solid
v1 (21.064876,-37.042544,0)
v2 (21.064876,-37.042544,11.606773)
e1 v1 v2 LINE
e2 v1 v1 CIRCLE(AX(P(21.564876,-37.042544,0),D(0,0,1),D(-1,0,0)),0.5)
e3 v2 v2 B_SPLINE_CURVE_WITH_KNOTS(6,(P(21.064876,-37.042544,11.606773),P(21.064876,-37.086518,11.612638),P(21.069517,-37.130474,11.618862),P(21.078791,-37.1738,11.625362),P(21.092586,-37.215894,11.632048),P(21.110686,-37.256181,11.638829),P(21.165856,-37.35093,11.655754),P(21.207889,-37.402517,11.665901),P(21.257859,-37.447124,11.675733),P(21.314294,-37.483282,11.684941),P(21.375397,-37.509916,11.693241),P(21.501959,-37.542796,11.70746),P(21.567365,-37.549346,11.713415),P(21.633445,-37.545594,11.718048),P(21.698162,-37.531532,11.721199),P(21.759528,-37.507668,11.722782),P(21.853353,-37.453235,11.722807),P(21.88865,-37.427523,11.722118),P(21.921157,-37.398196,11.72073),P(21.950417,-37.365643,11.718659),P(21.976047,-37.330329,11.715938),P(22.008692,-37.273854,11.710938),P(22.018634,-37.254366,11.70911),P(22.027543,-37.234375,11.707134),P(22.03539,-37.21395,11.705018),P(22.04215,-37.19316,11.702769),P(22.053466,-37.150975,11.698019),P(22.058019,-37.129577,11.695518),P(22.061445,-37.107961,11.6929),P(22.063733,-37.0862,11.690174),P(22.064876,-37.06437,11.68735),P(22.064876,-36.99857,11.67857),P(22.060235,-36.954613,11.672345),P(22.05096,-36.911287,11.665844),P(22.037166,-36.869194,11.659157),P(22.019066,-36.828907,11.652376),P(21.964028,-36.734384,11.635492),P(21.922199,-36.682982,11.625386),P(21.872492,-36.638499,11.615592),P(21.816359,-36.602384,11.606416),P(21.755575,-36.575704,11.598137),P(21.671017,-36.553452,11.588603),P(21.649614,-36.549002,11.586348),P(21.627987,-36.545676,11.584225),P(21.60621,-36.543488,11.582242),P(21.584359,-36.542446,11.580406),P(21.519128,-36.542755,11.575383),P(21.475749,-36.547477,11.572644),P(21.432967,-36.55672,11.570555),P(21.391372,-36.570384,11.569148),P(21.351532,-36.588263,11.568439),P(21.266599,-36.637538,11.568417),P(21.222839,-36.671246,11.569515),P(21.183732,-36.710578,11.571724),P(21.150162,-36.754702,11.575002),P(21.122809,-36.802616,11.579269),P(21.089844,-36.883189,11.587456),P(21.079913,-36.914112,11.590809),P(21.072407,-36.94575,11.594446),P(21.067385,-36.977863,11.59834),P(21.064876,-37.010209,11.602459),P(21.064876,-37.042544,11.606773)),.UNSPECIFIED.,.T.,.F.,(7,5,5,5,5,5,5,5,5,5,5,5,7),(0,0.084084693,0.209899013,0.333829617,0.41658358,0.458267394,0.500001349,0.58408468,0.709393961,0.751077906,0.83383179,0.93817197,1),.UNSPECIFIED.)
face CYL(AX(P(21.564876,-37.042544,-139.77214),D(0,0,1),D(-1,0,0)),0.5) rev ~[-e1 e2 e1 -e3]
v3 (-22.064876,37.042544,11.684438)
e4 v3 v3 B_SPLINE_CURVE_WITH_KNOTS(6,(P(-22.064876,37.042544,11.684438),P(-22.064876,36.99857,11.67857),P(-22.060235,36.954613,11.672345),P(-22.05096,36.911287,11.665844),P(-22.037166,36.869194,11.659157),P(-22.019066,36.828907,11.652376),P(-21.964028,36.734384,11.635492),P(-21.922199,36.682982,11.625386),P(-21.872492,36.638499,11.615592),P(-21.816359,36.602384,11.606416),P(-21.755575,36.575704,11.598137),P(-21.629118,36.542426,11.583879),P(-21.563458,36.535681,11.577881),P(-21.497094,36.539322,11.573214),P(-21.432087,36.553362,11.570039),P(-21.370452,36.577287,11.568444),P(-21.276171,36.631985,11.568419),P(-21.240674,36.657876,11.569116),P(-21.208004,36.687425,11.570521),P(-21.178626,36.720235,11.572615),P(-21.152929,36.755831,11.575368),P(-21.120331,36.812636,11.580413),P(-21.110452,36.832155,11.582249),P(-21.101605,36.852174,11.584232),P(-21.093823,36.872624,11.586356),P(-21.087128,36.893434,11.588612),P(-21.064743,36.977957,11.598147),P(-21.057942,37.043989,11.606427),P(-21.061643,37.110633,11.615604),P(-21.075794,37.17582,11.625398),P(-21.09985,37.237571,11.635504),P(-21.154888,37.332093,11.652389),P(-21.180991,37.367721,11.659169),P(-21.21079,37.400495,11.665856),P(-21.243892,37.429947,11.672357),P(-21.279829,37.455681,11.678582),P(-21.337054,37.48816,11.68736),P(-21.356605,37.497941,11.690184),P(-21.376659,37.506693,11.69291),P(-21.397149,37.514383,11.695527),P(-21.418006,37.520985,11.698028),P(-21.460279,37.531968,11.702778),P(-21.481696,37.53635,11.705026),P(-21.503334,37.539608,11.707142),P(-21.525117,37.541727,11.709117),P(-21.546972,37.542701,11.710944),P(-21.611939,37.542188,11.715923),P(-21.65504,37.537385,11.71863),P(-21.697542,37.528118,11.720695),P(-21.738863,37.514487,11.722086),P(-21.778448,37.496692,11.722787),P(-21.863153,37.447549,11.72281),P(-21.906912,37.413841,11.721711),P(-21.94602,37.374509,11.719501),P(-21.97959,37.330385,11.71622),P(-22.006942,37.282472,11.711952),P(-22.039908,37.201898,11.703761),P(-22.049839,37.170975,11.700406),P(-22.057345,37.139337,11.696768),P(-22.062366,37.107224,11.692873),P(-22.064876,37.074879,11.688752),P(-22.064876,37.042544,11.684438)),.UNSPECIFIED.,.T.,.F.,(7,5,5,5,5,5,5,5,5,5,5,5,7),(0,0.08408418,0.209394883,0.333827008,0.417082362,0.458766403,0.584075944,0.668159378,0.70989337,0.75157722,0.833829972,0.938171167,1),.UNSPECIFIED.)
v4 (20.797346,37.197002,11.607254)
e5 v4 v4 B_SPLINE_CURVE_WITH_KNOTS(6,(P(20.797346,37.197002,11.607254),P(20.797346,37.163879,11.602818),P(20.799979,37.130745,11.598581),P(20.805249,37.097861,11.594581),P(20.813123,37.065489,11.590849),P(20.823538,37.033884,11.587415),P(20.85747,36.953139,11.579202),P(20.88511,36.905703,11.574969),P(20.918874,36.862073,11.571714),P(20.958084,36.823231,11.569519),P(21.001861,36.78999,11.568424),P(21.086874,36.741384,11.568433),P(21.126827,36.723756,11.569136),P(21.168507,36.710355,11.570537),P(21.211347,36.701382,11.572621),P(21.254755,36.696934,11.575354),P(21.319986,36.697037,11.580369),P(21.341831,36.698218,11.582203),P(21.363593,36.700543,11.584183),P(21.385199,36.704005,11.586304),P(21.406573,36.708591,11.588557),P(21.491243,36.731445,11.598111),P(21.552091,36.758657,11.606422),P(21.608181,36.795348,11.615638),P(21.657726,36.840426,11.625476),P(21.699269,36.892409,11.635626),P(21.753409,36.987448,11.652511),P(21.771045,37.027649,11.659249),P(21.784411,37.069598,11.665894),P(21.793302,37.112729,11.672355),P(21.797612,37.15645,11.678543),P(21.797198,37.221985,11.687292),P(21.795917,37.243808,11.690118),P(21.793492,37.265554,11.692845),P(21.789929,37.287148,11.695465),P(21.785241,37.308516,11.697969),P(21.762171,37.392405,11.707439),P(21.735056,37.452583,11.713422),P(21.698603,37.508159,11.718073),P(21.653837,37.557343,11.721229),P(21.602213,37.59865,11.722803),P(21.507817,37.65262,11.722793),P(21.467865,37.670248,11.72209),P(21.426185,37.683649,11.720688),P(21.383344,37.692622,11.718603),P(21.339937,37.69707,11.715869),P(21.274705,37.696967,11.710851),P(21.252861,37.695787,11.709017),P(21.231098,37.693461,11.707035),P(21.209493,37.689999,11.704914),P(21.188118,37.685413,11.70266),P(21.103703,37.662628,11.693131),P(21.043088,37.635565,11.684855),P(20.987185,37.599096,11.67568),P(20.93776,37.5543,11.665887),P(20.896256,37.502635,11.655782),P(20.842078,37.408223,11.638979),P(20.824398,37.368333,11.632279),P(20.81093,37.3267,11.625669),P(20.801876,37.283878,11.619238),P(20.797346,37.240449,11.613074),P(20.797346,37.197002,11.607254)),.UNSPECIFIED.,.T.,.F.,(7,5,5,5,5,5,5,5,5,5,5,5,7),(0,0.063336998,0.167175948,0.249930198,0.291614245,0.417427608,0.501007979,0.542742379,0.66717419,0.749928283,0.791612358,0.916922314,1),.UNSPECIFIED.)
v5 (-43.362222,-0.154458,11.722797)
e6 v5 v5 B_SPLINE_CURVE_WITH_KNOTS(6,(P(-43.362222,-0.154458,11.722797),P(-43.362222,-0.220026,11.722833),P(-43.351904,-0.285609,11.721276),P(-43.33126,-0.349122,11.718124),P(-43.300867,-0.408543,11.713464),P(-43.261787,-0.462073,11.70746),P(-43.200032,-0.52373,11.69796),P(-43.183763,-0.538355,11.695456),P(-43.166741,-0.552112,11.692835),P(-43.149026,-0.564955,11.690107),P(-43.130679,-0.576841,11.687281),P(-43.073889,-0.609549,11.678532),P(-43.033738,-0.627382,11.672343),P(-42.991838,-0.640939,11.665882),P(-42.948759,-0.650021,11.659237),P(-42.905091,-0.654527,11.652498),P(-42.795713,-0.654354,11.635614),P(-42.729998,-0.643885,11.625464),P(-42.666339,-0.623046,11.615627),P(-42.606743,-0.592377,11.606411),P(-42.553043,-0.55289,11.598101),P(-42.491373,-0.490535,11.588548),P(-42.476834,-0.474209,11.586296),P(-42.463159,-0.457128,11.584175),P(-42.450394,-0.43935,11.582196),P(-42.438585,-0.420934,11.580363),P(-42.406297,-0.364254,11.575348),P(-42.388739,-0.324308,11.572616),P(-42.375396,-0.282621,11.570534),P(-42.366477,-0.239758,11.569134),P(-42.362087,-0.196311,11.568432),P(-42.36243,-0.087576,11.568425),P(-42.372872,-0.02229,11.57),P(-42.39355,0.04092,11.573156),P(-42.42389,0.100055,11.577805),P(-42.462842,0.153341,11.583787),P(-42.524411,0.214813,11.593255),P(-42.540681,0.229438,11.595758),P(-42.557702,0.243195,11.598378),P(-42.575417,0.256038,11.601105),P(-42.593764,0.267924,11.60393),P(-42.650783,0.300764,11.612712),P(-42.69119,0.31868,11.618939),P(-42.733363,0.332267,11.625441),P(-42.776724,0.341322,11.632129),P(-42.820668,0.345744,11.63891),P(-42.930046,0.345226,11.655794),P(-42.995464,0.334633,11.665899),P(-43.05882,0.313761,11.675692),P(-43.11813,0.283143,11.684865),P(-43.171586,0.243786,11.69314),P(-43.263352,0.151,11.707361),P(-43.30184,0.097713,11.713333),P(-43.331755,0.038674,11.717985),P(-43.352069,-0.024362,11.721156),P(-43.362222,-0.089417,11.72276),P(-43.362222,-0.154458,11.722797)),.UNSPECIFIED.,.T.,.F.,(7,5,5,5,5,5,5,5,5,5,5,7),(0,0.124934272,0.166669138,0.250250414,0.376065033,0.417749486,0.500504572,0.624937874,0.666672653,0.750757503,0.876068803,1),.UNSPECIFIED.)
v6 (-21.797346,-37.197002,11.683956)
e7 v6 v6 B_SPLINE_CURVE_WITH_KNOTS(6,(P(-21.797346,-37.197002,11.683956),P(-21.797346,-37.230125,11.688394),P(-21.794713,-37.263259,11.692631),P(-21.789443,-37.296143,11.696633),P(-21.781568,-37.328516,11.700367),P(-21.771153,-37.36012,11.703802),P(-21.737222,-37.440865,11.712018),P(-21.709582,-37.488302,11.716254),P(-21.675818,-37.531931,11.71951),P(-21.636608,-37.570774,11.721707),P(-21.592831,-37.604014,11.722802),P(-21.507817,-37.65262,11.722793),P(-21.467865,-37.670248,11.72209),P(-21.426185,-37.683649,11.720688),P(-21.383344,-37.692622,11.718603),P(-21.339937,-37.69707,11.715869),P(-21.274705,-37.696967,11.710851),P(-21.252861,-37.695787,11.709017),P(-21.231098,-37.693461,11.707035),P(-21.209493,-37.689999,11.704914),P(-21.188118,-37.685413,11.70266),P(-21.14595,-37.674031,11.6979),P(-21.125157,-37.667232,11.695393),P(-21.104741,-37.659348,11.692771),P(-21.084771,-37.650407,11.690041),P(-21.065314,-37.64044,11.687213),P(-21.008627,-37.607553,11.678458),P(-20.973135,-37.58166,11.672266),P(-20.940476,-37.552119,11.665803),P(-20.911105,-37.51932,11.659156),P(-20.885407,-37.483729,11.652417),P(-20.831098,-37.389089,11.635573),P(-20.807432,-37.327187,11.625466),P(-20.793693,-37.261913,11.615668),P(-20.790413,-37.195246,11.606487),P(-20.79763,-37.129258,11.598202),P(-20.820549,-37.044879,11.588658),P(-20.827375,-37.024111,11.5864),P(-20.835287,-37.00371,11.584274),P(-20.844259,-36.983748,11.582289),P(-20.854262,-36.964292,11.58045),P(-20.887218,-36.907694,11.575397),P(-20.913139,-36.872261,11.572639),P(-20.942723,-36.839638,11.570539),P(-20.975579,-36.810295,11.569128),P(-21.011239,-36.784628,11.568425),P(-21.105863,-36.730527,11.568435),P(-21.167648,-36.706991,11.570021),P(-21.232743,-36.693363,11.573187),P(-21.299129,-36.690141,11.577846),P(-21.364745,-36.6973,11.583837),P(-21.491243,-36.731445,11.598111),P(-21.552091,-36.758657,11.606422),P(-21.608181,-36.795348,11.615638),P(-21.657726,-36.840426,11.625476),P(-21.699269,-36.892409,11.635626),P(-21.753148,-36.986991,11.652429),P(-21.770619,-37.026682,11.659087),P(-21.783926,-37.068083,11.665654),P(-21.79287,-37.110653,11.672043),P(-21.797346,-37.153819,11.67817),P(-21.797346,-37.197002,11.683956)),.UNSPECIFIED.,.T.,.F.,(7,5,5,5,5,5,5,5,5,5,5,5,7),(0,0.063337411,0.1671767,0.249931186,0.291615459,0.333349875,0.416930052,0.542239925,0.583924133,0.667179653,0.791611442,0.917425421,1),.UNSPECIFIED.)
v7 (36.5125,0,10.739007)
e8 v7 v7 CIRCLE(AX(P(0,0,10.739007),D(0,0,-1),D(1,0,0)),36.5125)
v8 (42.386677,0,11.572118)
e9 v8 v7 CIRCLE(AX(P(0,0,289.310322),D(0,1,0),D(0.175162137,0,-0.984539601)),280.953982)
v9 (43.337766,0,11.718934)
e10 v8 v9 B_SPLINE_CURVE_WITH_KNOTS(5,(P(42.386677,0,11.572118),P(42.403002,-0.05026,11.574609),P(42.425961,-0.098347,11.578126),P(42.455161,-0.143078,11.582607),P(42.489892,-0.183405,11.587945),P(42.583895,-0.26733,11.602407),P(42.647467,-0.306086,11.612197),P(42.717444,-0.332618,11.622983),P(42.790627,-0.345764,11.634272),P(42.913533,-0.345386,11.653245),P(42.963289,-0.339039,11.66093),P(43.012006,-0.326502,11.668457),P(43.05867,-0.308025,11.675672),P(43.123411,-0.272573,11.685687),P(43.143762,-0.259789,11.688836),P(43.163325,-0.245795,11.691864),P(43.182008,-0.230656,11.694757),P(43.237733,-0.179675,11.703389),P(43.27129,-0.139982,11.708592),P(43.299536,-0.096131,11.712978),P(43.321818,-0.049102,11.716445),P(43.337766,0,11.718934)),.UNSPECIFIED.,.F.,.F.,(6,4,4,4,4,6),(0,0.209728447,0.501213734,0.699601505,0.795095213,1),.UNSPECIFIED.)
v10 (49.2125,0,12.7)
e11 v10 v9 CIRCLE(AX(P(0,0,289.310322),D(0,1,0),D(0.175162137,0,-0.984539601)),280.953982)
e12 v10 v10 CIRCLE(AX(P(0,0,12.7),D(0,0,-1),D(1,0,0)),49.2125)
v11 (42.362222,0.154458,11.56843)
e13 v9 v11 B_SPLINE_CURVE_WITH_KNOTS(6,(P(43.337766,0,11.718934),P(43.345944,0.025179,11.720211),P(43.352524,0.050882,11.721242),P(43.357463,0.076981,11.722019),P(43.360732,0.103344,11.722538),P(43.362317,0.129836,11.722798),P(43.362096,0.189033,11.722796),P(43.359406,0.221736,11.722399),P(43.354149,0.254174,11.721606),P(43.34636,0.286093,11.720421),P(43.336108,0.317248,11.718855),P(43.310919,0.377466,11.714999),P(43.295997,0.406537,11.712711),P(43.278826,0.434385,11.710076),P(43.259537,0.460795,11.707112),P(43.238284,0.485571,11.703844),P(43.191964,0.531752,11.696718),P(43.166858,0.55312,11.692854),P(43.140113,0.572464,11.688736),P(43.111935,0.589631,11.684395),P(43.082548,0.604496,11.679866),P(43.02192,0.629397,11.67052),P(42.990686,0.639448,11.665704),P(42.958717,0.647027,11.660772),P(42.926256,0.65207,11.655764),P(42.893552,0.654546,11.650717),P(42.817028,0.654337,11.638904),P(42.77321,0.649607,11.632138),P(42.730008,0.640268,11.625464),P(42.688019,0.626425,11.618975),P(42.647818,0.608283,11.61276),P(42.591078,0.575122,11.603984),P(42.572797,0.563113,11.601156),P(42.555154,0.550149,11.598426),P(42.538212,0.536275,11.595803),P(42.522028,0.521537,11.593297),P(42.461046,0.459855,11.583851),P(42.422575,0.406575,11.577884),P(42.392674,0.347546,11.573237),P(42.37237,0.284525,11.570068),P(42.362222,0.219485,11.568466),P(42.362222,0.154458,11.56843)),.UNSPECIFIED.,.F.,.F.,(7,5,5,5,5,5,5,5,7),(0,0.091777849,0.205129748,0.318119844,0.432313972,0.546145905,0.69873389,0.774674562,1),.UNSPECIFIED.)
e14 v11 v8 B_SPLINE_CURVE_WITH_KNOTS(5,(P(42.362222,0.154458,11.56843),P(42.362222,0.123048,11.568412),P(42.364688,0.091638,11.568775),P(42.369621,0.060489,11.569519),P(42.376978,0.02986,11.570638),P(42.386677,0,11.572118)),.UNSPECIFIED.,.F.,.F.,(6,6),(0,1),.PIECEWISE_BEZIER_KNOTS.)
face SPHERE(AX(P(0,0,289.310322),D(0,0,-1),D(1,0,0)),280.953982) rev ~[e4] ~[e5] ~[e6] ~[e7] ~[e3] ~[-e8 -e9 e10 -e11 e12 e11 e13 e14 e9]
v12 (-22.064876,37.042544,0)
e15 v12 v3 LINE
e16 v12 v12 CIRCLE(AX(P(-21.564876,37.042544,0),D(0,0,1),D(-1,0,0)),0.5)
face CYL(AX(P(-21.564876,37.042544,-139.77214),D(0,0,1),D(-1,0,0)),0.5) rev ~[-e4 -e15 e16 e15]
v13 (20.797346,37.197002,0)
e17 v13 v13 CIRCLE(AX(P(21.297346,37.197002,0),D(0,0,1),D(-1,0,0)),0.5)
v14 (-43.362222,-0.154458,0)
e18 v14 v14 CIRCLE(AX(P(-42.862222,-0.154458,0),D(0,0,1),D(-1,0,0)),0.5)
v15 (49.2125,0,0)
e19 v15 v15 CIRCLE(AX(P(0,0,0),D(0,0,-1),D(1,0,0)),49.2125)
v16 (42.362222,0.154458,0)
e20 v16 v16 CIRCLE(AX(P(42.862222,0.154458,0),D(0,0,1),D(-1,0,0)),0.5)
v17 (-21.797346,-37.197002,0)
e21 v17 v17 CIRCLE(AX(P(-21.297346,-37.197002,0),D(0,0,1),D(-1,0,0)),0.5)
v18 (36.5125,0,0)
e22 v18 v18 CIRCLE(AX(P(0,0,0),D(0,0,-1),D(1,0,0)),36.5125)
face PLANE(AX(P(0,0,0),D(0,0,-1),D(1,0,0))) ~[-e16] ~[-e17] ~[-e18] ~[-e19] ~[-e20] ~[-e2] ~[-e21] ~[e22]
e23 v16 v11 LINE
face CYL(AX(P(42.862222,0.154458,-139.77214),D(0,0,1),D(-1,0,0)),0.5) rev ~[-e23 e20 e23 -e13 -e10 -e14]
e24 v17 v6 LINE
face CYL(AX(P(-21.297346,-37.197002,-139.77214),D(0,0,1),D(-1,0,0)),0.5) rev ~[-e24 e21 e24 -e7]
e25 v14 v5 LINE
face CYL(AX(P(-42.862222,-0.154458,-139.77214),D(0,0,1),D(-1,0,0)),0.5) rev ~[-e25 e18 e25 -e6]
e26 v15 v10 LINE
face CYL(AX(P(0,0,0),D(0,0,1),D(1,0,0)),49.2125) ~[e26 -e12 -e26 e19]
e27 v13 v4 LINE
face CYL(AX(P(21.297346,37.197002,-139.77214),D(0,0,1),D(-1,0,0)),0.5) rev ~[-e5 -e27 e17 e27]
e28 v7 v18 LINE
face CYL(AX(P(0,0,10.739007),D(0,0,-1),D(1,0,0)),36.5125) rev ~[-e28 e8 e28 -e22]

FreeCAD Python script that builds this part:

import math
import FreeCAD as App
import Part
import Sketcher
from FreeCAD import Vector
Q = App.Units.Quantity

doc = App.newDocument("Part")
params = doc.addObject("Spreadsheet::Sheet", "Params")
for row, (alias, value) in enumerate([
    ("sketch1_width", "12.7 mm"),
    ("revolution_angle", "360 deg"),
    ("sketch2_diameter", "1 mm"),
    ("hole_diameter", "1 mm"),
], start=1):
    params.set(f"A{row}", alias)
    params.set(f"B{row}", "=" + value)
    params.setAlias(f"B{row}", alias)

body = doc.addObject("PartDesign::Body", "Body")

sketch1 = body.newObject("Sketcher::SketchObject", "Sketch")
sketch1.AttachmentSupport = (doc.getObject("XZ_Plane"), [""])
sketch1.MapMode = "FlatFace"
sketch1.addGeometry([
    Part.ArcOfCircle(Part.Circle(Vector(0, 289, 0), Vector(0, 0, 1), 281), math.radians(-82.53), math.radians(-79.91)),
    Part.LineSegment(Vector(37, 11, 0), Vector(37, 0, 0)),
    Part.LineSegment(Vector(37, 0, 0), Vector(49, 0, 0)),
    Part.LineSegment(Vector(49, 0, 0), Vector(49, 13, 0)),
], False)
sketch1.addConstraint([
    Sketcher.Constraint("Coincident", 0, 1, 1, 1),
    Sketcher.Constraint("Coincident", 1, 2, 2, 1),
    Sketcher.Constraint("Coincident", 2, 2, 3, 1),
    Sketcher.Constraint("Coincident", 3, 2, 0, 2),
    Sketcher.Constraint("Vertical", 1),
    Sketcher.Constraint("Horizontal", 2),
    Sketcher.Constraint("Vertical", 3),
    Sketcher.Constraint("PointOnObject", 0, 3, -2),
    Sketcher.Constraint("PointOnObject", 1, 2, -1),
    Sketcher.Constraint("Equal", 2, 3),
    Sketcher.Constraint("DistanceX", 2, 1, 2, 2, Q("12.7 mm")),
    Sketcher.Constraint("Radius", 0, Q("280.953982 mm")),
    Sketcher.Constraint("DistanceX", -1, 1, 1, 2, Q("36.5125 mm")),
])
sketch1.setExpression("Constraints[10]", "Params.sketch1_width")
revolution = body.newObject("PartDesign::Revolution", "Revolution")
revolution.Profile = sketch1
revolution.ReferenceAxis = (sketch1, ["V_Axis"])
revolution.setExpression("Angle", "Params.revolution_angle")

sketch2 = body.newObject("Sketcher::SketchObject", "Sketch001")
sketch2.AttachmentSupport = (doc.getObject("XY_Plane"), [""])
sketch2.MapMode = "FlatFace"
sketch2.addGeometry([
    Part.Circle(Vector(-21.3, -37.2, 0), Vector(0, 0, 1), 0.5),
    Part.Circle(Vector(21.6, -37, 0), Vector(0, 0, 1), 0.5),
    Part.Circle(Vector(42.9, 0.2, 0), Vector(0, 0, 1), 0.5),
    Part.Circle(Vector(21.3, 37.2, 0), Vector(0, 0, 1), 0.5),
    Part.Circle(Vector(-21.6, 37, 0), Vector(0, 0, 1), 0.5),
    Part.Circle(Vector(-42.9, -0.2, 0), Vector(0, 0, 1), 0.5),
], False)
sketch2.addConstraint([
    Sketcher.Constraint("Equal", 0, 1),
    Sketcher.Constraint("Equal", 1, 2),
    Sketcher.Constraint("Equal", 2, 3),
    Sketcher.Constraint("Equal", 3, 4),
    Sketcher.Constraint("Equal", 4, 5),
    Sketcher.Constraint("Symmetric", 0, 3, 3, 3, -1, 1),
    Sketcher.Constraint("Symmetric", 1, 3, 4, 3, -1, 1),
    Sketcher.Constraint("Symmetric", 2, 3, 5, 3, -1, 1),
    Sketcher.Constraint("Diameter", 0, Q("1 mm")),
    Sketcher.Constraint("DistanceX", -1, 1, 2, 3, Q("42.862222 mm")),
    Sketcher.Constraint("DistanceY", -1, 1, 2, 3, Q("0.154458 mm")),
    Sketcher.Constraint("DistanceX", 0, 3, 1, 3, Q("42.862222 mm")),
    Sketcher.Constraint("DistanceY", 0, 3, 1, 3, Q("0.154458 mm")),
    Sketcher.Constraint("DistanceY", 0, 3, 2, 3, Q("37.351461 mm")),
    Sketcher.Constraint("DistanceX", 3, 3, 1, 3, Q("0.26753 mm")),
])
sketch2.setExpression("Constraints[8]", "Params.sketch2_diameter")
doc.recompute()
hole = body.newObject("PartDesign::Hole", "Hole")
hole.Profile = sketch2
hole.ThreadType = "None"
hole.setExpression("Diameter", "Params.hole_diameter")
hole.DepthType = "ThroughAll"
hole.Reversed = True

doc.recompute()
